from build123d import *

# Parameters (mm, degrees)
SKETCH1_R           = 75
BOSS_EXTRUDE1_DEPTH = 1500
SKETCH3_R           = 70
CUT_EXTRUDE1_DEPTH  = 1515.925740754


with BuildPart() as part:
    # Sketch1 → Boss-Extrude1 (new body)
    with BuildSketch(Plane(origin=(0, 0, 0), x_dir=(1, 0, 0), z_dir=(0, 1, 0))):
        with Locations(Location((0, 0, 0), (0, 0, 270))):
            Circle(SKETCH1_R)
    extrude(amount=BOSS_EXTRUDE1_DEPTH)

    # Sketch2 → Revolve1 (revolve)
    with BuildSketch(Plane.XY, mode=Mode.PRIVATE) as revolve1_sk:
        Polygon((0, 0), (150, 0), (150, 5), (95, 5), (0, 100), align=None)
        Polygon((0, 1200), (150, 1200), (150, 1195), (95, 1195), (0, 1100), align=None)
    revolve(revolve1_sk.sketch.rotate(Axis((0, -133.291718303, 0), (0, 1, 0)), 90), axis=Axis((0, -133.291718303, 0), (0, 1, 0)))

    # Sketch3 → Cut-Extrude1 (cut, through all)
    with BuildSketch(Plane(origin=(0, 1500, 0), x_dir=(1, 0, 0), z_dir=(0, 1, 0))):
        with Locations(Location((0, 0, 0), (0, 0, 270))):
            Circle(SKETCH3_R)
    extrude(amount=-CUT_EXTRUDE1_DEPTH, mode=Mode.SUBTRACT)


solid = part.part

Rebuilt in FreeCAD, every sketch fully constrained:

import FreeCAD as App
import Part
import Sketcher
from FreeCAD import Vector
Q = App.Units.Quantity

doc = App.newDocument("Part")
body = doc.addObject("PartDesign::Body", "Body")

sketch1 = body.newObject("Sketcher::SketchObject", "Sketch")
sketch1.AttachmentSupport = (doc.getObject("XZ_Plane"), [""])
sketch1.MapMode = "FlatFace"
sketch1.addGeometry(Part.Circle(Vector(0, 0, 0), Vector(0, 0, 1), 75), False)
sketch1.addConstraint([
    Sketcher.Constraint("Coincident", 0, 3, -1, 1),
    Sketcher.Constraint("Diameter", 0, Q("150 mm")),
])
pad1 = body.newObject("PartDesign::Pad", "Pad")
pad1.Profile = sketch1
pad1.Length = 1500
pad1.Reversed = True

sketch2 = body.newObject("Sketcher::SketchObject", "Sketch001")
sketch2.AttachmentSupport = (doc.getObject("XY_Plane"), [""])
sketch2.MapMode = "FlatFace"
sketch2.addGeometry([
    Part.LineSegment(Vector(0, 0, 0), Vector(150, 0, 0)),
    Part.LineSegment(Vector(150, 0, 0), Vector(150, 5, 0)),
    Part.LineSegment(Vector(150, 5, 0), Vector(95, 5, 0)),
    Part.LineSegment(Vector(95, 5, 0), Vector(0, 100, 0)),
    Part.LineSegment(Vector(0, 100, 0), Vector(0, 0, 0)),
    Part.LineSegment(Vector(150, 1200, 0), Vector(0, 1200, 0)),
    Part.LineSegment(Vector(0, 1200, 0), Vector(0, 1100, 0)),
    Part.LineSegment(Vector(0, 1100, 0), Vector(95, 1195, 0)),
    Part.LineSegment(Vector(95, 1195, 0), Vector(150, 1195, 0)),
    Part.LineSegment(Vector(150, 1195, 0), Vector(150, 1200, 0)),
], False)
sketch2.addConstraint([
    Sketcher.Constraint("Coincident", 0, 2, 1, 1),
    Sketcher.Constraint("Coincident", 1, 2, 2, 1),
    Sketcher.Constraint("Coincident", 2, 2, 3, 1),
    Sketcher.Constraint("Coincident", 3, 2, 4, 1),
    Sketcher.Constraint("Coincident", 4, 2, 0, 1),
    Sketcher.Constraint("Coincident", 5, 2, 6, 1),
    Sketcher.Constraint("Coincident", 6, 2, 7, 1),
    Sketcher.Constraint("Coincident", 7, 2, 8, 1),
    Sketcher.Constraint("Coincident", 8, 2, 9, 1),
    Sketcher.Constraint("Coincident", 9, 2, 5, 1),
    Sketcher.Constraint("Horizontal", 0),
    Sketcher.Constraint("Vertical", 1),
    Sketcher.Constraint("Horizontal", 2),
    Sketcher.Constraint("Vertical", 4),
    Sketcher.Constraint("Horizontal", 5),
    Sketcher.Constraint("Vertical", 6),
    Sketcher.Constraint("Horizontal", 8),
    Sketcher.Constraint("Vertical", 9),
    Sketcher.Constraint("Coincident", 4, 2, -1, 1),
    Sketcher.Constraint("PointOnObject", 5, 2, -2),
    Sketcher.Constraint("Perpendicular", 3, 7),
    Sketcher.Constraint("Vertical", 2, 2, 7, 2),
    Sketcher.Constraint("Vertical", 1, 2, 8, 2),
    Sketcher.Constraint("Equal", 4, 6),
    Sketcher.Constraint("Equal", 1, 9),
    Sketcher.Constraint("DistanceX", 0, 1, 0, 2, Q("150 mm")),
    Sketcher.Constraint("DistanceX", 2, 2, 2, 1, Q("55 mm")),
    Sketcher.Constraint("DistanceY", 1, 1, 1, 2, Q("5 mm")),
    Sketcher.Constraint("DistanceY", -1, 1, 5, 2, Q("1200 mm")),
])
revolution = body.newObject("PartDesign::Revolution", "Revolution")
revolution.Profile = sketch2
revolution.ReferenceAxis = (sketch2, ["V_Axis"])
revolution.Angle = 360

sketch3 = body.newObject("Sketcher::SketchObject", "Sketch002")
sketch3.AttachmentSupport = (doc.getObject("XZ_Plane"), [""])
sketch3.MapMode = "FlatFace"
sketch3.AttachmentOffset = App.Placement(Vector(0, 0, -1500), App.Rotation())
sketch3.addGeometry(Part.Circle(Vector(0, 0, 0), Vector(0, 0, 1), 70), False)
sketch3.addConstraint([
    Sketcher.Constraint("Coincident", 0, 3, -1, 1),
    Sketcher.Constraint("Diameter", 0, Q("140 mm")),
])
pocket1 = body.newObject("PartDesign::Pocket", "Pocket")
pocket1.Profile = sketch3
pocket1.Type = "ThroughAll"
pocket1.Reversed = True

doc.recompute()
